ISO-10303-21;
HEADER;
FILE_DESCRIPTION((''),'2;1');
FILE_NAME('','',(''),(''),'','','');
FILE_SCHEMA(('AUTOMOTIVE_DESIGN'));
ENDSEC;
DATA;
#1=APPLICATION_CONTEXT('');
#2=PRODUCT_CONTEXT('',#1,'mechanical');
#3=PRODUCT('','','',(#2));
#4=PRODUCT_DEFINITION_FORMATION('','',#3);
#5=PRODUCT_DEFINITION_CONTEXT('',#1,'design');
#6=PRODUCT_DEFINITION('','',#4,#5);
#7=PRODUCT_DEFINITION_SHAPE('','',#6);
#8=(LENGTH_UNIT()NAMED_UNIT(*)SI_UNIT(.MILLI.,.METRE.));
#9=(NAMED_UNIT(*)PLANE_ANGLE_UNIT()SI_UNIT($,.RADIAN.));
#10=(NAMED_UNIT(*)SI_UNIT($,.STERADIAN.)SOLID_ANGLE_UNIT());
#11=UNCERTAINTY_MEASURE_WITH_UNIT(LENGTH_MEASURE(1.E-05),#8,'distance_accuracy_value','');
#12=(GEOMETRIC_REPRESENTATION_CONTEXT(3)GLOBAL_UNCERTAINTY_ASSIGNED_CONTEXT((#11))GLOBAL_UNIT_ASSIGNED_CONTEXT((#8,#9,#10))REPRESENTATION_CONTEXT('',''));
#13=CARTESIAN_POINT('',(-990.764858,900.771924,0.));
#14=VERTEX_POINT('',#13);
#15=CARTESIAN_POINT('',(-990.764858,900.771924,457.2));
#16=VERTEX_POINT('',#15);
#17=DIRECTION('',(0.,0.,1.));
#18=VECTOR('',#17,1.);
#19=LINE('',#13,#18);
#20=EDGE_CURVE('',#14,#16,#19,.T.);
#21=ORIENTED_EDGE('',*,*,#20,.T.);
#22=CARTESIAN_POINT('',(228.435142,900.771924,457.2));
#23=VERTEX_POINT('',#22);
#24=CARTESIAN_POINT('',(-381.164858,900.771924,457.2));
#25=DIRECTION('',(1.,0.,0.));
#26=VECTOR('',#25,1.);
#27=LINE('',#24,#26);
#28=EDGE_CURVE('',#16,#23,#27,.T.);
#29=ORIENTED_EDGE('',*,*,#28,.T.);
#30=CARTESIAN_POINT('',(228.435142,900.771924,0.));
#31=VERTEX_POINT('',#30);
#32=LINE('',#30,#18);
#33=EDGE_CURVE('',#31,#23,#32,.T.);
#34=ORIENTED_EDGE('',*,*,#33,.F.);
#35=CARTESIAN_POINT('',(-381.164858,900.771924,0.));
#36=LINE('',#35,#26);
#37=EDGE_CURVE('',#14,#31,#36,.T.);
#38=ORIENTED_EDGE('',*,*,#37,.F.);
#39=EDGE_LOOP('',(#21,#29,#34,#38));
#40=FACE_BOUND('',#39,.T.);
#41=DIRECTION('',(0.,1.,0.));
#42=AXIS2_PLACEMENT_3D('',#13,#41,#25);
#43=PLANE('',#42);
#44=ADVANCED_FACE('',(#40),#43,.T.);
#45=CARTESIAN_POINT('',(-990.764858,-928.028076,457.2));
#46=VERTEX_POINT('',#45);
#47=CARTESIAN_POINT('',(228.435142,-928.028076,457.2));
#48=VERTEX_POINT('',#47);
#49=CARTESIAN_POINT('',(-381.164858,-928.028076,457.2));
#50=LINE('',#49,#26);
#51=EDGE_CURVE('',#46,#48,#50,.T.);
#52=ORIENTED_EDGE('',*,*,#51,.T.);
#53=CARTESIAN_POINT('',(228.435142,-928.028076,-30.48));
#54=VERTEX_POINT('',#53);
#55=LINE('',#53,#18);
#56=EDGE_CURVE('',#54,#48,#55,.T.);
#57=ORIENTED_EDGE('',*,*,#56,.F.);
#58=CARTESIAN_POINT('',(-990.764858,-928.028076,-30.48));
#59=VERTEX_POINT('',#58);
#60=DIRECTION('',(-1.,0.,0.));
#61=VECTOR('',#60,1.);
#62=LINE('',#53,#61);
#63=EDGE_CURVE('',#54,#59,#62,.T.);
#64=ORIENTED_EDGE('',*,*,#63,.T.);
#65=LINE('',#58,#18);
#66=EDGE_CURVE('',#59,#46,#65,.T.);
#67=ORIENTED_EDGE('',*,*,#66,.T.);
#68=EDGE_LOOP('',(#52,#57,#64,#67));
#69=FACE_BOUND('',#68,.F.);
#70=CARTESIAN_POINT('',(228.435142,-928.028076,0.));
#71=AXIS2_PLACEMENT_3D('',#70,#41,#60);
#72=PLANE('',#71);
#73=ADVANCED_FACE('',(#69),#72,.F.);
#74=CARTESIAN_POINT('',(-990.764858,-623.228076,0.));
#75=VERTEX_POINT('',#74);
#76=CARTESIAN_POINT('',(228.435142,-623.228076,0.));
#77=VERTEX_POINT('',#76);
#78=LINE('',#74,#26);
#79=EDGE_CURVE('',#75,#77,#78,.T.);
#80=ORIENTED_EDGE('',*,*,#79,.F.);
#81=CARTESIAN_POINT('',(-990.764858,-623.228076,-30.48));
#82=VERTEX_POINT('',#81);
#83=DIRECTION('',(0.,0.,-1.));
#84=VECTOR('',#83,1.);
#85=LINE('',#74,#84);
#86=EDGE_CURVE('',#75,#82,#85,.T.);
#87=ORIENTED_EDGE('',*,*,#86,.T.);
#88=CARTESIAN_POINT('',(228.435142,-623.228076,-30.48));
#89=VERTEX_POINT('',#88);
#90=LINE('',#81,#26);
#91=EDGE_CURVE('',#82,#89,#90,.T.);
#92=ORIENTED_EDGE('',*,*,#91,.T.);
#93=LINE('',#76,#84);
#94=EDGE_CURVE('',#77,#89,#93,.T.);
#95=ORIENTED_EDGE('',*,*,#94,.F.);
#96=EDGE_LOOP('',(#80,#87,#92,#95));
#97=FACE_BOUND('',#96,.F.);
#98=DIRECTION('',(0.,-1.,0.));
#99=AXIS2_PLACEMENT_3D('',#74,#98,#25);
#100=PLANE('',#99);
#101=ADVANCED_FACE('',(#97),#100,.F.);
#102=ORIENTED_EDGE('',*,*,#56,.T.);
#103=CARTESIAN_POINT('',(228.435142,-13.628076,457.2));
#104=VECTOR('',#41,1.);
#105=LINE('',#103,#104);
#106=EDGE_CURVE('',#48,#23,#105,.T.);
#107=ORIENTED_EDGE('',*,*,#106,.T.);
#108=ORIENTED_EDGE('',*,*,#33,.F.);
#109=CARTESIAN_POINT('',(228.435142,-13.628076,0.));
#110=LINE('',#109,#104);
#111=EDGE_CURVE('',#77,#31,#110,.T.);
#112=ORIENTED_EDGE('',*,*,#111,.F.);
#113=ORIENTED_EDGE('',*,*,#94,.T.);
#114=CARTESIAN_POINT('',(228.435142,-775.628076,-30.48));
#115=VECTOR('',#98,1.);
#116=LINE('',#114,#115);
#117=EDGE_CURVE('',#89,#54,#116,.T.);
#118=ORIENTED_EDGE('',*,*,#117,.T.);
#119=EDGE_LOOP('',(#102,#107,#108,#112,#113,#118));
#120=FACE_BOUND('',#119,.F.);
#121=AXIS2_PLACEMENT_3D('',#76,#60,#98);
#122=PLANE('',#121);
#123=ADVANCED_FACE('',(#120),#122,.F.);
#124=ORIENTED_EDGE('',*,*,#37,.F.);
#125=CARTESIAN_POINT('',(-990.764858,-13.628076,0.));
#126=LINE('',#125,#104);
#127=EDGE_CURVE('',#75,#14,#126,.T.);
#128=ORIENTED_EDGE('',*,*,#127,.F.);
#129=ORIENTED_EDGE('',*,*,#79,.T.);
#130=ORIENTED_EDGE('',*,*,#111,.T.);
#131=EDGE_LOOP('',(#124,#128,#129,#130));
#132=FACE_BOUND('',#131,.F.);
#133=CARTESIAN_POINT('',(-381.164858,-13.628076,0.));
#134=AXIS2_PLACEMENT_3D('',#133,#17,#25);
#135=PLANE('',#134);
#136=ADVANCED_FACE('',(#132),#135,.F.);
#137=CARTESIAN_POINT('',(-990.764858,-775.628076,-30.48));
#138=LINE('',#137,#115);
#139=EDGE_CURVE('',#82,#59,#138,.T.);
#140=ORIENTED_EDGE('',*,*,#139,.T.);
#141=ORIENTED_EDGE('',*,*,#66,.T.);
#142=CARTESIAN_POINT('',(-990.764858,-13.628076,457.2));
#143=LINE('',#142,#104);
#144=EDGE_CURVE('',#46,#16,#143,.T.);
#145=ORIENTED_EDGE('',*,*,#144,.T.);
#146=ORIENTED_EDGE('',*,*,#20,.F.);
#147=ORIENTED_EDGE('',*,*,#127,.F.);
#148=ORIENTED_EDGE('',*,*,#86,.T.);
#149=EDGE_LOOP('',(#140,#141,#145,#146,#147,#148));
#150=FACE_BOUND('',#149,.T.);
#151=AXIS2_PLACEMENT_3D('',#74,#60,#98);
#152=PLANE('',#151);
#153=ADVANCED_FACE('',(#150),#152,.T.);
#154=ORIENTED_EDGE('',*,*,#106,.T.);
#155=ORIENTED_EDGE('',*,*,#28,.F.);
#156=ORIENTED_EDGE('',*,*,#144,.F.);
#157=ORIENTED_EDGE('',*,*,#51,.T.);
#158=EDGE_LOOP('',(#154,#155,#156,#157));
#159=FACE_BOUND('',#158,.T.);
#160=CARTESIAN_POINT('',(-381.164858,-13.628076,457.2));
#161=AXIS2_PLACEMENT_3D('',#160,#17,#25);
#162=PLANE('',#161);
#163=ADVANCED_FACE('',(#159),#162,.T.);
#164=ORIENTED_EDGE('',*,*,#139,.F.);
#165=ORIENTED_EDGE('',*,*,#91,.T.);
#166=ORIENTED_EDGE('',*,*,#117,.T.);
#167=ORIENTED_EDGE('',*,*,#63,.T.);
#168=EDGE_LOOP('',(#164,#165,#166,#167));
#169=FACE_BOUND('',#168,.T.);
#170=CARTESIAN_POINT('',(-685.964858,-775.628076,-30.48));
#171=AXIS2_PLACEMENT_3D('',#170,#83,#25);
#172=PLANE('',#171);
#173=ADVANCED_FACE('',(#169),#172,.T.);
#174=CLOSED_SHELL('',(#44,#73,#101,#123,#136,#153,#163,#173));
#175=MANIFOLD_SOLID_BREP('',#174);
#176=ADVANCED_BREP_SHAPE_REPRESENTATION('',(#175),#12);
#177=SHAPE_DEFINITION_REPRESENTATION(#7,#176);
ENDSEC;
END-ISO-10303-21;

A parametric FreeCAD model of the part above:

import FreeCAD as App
import Part
import Sketcher
from FreeCAD import Vector
Q = App.Units.Quantity

doc = App.newDocument("Part")
body = doc.addObject("PartDesign::Body", "Body")

# Sketch on XY plane
sketch1 = body.newObject("Sketcher::SketchObject", "Sketch")
sketch1.AttachmentSupport = (doc.getObject("XY_Plane"), [""])
sketch1.MapMode = "FlatFace"
sketch1.addGeometry([
    Part.LineSegment(Vector(-990.764858, 900.771924, 0), Vector(-990.764858, -928.028076, 0)),
    Part.LineSegment(Vector(-990.764858, -928.028076, 0), Vector(228.435142, -928.028076, 0)),
    Part.LineSegment(Vector(228.435142, -928.028076, 0), Vector(228.435142, 900.771924, 0)),
    Part.LineSegment(Vector(228.435142, 900.771924, 0), Vector(-990.764858, 900.771924, 0)),
], False)
sketch1.addConstraint([
    Sketcher.Constraint("Coincident", 0, 2, 1, 1),
    Sketcher.Constraint("Coincident", 1, 2, 2, 1),
    Sketcher.Constraint("Coincident", 2, 2, 3, 1),
    Sketcher.Constraint("Coincident", 3, 2, 0, 1),
    Sketcher.Constraint("Vertical", 0),
    Sketcher.Constraint("Horizontal", 1),
    Sketcher.Constraint("Vertical", 2),
    Sketcher.Constraint("Horizontal", 3),
    Sketcher.Constraint("DistanceX", 1, 1, 1, 2, Q("48 in")),
    Sketcher.Constraint("DistanceY", 0, 2, 0, 1, Q("72 in")),
    Sketcher.Constraint("DistanceX", 0, 2, -1, 1, 990.764858),
    Sketcher.Constraint("DistanceY", 0, 2, -1, 1, 928.028076),
])
pad1 = body.newObject("PartDesign::Pad", "Pad")
pad1.Profile = sketch1
pad1.Length = Q("18 in")

# Sketch on XY plane
sketch2 = body.newObject("Sketcher::SketchObject", "Sketch001")
sketch2.AttachmentSupport = (doc.getObject("XY_Plane"), [""])
sketch2.MapMode = "FlatFace"
sketch2.addGeometry([
    Part.LineSegment(Vector(-990.764858, -928.028076, 0), Vector(-990.764858, -623.228076, 0)),
    Part.LineSegment(Vector(-990.764858, -623.228076, 0), Vector(228.435142, -623.228076, 0)),
    Part.LineSegment(Vector(228.435142, -623.228076, 0), Vector(228.435142, -928.028076, 0)),
    Part.LineSegment(Vector(228.435142, -928.028076, 0), Vector(-990.764858, -928.028076, 0)),
], False)
sketch2.addConstraint([
    Sketcher.Constraint("Coincident", 0, 2, 1, 1),
    Sketcher.Constraint("Coincident", 1, 2, 2, 1),
    Sketcher.Constraint("Coincident", 2, 2, 3, 1),
    Sketcher.Constraint("Coincident", 3, 2, 0, 1),
    Sketcher.Constraint("Vertical", 0),
    Sketcher.Constraint("Horizontal", 1),
    Sketcher.Constraint("Vertical", 2),
    Sketcher.Constraint("Horizontal", 3),
    Sketcher.Constraint("DistanceX", 1, 1, 1, 2, Q("48 in")),
    Sketcher.Constraint("DistanceY", 0, 1, 0, 2, Q("12 in")),
    Sketcher.Constraint("DistanceX", 0, 2, -1, 1, 990.764858),
    Sketcher.Constraint("DistanceY", 0, 2, -1, 1, 623.228076),
])
pad2 = body.newObject("PartDesign::Pad", "Pad001")
pad2.Profile = sketch2
pad2.Length = Q("1.2 in")
pad2.Reversed = True

doc.recompute()
